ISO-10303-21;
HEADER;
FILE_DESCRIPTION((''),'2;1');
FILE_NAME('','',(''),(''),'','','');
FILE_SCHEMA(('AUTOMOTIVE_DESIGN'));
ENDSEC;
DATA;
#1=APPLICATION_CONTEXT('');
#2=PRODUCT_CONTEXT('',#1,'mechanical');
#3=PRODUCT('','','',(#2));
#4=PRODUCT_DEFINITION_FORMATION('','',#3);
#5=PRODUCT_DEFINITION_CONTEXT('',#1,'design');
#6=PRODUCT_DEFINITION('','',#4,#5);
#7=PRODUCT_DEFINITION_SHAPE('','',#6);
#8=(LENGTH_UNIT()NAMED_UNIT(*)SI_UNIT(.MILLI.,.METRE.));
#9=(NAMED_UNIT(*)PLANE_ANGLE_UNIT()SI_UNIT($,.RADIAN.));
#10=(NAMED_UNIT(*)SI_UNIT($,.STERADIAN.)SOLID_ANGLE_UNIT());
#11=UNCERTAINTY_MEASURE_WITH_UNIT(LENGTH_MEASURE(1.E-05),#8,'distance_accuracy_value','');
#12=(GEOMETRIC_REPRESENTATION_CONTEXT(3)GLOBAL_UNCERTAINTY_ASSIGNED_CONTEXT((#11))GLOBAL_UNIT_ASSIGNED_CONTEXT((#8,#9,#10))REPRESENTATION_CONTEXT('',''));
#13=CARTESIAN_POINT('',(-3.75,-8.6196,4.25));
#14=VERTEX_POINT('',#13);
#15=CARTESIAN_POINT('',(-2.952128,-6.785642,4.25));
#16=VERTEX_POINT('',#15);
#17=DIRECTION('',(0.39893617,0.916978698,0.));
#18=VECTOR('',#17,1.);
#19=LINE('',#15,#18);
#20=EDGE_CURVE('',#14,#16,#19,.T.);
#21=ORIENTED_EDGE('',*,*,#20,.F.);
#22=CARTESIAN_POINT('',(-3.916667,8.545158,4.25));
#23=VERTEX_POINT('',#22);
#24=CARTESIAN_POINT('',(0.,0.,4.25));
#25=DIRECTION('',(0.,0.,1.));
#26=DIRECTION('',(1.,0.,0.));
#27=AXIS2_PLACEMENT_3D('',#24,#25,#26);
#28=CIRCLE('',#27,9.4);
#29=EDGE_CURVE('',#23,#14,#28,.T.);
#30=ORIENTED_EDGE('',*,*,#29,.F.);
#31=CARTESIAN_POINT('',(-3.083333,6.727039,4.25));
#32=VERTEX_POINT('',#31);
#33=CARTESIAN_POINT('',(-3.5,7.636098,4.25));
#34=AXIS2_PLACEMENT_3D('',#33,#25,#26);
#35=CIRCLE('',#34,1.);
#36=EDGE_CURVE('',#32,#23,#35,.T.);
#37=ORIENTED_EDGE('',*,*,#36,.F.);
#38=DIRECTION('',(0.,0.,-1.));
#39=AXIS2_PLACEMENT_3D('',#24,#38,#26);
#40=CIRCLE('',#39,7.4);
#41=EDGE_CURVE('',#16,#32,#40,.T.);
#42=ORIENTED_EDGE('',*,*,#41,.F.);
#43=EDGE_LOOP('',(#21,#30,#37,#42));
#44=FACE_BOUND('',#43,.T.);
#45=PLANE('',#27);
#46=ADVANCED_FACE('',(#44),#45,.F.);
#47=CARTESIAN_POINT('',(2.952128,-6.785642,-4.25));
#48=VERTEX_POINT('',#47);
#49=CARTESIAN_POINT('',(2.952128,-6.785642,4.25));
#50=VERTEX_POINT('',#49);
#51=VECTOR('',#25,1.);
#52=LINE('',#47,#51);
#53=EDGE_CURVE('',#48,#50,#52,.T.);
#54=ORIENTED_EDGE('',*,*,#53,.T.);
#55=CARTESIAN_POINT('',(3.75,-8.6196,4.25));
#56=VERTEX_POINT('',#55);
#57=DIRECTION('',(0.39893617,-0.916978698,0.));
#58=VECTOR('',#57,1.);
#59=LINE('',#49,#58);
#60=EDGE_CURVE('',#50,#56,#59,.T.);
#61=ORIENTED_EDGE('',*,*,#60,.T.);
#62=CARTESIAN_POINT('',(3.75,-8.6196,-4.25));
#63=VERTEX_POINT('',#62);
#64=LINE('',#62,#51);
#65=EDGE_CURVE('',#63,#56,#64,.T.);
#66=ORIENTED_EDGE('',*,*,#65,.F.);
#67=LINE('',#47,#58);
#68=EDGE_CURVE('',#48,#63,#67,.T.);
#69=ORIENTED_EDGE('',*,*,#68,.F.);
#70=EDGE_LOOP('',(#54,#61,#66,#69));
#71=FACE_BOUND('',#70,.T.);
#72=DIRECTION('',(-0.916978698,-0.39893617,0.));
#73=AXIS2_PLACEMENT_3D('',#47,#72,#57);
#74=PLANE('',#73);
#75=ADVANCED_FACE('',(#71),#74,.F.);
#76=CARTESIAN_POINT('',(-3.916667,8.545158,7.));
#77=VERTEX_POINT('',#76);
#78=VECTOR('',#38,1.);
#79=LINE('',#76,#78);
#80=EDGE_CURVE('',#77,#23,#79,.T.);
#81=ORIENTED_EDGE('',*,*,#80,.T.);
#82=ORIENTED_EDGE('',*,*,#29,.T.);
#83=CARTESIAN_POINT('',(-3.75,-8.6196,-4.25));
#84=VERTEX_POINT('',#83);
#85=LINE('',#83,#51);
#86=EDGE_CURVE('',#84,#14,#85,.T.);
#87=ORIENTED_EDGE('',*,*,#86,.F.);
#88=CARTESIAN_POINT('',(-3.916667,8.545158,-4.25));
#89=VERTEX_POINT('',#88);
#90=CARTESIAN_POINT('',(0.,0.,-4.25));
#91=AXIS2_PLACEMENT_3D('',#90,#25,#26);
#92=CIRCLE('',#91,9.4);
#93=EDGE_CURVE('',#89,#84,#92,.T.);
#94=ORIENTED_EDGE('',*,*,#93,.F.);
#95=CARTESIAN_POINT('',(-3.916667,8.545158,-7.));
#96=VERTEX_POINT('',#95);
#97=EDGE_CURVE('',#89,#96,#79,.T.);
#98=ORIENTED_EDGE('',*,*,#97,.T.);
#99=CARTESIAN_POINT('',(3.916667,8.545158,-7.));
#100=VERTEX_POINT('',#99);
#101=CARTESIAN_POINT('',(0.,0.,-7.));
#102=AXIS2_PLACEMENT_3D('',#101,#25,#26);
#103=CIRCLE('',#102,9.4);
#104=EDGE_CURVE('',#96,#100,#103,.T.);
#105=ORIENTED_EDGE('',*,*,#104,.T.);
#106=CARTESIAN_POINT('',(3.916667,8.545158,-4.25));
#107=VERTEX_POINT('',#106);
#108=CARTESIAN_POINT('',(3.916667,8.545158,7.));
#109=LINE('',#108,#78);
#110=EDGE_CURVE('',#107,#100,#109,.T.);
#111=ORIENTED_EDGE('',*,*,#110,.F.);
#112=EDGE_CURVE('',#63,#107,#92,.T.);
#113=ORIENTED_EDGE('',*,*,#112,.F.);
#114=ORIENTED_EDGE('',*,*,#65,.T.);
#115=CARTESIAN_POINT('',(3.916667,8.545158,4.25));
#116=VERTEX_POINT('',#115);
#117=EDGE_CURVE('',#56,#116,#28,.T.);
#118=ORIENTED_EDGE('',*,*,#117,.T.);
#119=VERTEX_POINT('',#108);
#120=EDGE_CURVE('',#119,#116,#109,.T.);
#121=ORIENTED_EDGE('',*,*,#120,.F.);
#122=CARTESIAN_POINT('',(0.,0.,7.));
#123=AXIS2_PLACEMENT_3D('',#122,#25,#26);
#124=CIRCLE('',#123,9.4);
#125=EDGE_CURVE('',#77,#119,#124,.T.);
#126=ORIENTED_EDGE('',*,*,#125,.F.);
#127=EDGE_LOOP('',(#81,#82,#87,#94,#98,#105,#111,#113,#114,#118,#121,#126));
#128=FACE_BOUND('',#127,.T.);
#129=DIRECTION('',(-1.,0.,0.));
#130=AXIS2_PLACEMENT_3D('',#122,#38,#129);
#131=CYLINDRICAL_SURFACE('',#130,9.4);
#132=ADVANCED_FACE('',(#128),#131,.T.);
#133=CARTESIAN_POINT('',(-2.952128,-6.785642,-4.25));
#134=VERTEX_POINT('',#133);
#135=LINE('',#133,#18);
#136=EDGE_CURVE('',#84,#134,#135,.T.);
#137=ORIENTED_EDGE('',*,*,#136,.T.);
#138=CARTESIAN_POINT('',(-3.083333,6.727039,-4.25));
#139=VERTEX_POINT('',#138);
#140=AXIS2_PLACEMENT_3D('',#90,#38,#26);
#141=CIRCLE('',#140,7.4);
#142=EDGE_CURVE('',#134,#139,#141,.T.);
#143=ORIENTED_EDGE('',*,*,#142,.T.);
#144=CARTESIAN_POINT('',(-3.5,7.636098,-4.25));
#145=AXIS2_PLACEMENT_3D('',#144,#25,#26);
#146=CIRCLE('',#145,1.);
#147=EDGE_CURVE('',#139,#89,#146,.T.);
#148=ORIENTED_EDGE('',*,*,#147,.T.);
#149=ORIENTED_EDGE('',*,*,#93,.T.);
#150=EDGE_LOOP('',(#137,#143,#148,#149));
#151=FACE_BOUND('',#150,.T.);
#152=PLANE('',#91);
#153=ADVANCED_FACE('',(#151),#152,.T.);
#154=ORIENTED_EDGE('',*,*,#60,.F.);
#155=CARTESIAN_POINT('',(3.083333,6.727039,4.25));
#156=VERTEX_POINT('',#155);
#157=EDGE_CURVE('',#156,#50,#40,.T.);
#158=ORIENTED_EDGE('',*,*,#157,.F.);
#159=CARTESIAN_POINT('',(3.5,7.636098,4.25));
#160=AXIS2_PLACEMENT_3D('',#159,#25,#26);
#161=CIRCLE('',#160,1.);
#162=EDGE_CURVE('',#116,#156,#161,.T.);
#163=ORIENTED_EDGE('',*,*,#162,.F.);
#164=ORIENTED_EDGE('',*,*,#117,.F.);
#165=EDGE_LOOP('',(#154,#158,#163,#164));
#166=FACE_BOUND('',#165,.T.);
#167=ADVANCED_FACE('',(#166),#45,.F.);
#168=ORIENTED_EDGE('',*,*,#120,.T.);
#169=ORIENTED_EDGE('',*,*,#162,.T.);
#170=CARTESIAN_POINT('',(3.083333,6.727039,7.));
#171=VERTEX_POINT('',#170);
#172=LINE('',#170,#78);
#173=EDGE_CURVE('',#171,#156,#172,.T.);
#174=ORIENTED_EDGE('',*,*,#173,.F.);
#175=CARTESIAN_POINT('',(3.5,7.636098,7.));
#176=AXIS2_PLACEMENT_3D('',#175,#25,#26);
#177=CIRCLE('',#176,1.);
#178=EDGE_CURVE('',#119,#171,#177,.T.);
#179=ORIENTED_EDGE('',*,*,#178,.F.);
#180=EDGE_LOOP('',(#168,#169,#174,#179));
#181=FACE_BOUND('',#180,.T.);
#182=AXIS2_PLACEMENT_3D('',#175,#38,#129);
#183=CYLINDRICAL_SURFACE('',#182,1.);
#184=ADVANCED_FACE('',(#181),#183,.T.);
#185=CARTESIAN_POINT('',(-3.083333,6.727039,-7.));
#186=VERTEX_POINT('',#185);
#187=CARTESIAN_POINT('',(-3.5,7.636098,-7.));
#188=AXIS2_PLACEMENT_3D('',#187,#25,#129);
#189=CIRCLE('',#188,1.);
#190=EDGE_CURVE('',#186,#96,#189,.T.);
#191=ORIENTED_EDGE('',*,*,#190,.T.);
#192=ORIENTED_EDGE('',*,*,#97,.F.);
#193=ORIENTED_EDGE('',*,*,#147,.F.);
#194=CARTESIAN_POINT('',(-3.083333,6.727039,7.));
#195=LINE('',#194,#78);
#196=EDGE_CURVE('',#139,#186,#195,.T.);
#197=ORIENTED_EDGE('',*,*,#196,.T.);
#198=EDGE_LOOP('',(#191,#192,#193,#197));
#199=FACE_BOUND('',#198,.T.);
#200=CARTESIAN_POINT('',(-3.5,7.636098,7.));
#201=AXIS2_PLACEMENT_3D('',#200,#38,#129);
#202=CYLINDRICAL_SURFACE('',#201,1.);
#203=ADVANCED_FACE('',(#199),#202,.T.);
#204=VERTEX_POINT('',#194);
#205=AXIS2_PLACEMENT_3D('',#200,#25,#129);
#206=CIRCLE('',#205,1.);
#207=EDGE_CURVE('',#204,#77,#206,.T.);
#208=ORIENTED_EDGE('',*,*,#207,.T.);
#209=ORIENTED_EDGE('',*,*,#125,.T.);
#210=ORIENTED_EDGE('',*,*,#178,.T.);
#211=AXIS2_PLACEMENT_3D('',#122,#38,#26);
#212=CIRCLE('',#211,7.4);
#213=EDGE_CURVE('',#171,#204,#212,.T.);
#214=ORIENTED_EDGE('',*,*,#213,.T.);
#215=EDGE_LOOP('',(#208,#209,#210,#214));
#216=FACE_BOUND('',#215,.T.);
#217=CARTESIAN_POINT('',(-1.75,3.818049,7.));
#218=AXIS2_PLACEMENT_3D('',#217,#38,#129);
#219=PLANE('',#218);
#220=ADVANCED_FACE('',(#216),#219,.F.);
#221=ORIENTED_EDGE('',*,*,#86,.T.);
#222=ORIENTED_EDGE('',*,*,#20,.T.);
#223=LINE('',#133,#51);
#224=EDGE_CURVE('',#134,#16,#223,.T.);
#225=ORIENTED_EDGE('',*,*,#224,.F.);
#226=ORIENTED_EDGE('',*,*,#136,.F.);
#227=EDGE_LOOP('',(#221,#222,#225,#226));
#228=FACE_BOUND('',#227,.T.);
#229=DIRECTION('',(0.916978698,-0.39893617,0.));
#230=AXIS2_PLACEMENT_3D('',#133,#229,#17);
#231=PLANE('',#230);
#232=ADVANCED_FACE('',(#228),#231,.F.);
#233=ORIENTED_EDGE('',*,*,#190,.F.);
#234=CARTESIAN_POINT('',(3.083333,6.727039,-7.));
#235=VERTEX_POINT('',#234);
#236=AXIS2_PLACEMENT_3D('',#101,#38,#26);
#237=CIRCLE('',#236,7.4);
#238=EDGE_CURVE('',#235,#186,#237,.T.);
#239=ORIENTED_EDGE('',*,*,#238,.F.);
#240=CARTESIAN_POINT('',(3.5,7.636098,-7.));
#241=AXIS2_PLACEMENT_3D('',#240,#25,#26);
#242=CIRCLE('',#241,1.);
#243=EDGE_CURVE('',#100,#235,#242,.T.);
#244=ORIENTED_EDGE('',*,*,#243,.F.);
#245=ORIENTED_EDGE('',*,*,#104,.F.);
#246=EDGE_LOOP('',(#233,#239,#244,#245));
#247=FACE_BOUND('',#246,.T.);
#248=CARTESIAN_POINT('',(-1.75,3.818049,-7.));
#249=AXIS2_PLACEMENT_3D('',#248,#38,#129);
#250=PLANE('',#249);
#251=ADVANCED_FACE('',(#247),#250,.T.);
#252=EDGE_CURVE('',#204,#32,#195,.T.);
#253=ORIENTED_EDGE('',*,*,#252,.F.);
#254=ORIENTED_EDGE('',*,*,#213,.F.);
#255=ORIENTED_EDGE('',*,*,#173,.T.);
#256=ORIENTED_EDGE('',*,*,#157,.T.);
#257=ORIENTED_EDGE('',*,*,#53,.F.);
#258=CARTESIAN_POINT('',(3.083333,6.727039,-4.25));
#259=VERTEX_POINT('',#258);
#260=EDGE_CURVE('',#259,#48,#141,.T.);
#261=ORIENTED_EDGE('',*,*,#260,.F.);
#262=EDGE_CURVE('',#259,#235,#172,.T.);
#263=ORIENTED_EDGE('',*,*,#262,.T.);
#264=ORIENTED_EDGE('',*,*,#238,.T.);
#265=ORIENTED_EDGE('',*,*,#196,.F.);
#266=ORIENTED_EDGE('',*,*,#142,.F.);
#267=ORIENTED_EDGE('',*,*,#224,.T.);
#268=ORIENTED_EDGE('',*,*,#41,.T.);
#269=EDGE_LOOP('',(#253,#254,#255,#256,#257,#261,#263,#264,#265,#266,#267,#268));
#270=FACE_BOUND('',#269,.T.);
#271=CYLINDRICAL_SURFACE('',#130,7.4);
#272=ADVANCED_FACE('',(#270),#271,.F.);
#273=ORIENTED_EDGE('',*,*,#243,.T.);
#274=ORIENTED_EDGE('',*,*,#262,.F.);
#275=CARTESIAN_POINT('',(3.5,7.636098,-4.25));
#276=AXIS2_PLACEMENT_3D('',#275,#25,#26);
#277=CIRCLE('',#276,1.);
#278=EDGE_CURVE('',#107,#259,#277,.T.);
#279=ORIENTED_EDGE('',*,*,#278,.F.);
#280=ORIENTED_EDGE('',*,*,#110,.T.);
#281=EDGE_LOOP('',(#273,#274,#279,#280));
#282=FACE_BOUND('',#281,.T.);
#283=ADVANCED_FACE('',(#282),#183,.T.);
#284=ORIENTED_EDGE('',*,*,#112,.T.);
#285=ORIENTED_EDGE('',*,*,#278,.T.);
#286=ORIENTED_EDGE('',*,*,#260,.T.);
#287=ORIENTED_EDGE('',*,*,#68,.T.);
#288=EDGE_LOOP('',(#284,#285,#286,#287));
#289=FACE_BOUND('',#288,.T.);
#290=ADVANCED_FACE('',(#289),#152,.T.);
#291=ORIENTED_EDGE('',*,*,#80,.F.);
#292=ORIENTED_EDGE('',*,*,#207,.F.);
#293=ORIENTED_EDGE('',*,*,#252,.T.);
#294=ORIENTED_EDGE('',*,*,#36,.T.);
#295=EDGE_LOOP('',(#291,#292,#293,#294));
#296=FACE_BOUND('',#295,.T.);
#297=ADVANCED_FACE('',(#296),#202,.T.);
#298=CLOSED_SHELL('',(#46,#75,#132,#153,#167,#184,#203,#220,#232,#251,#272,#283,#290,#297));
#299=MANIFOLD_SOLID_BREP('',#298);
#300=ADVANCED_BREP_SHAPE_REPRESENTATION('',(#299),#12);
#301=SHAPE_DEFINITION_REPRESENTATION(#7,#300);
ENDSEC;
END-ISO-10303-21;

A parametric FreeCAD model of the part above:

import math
import FreeCAD as App
import Part
import Sketcher

V = App.Vector
Q = App.Units.Quantity

doc = App.newDocument("Part")
params = doc.addObject("Spreadsheet::Sheet", "Params")
for row, (alias, value) in enumerate([
    ("sketch1_radius", "1 mm"),
    ("sketch1_radius2", "7.4 mm"),
    ("pad1_length", "14 mm"),
    ("sketch2_radius", "1 mm"),
    ("sketch2_radius2", "7.4 mm"),
    ("pocket1_length", "8.5 mm"),
], start=1):
    params.set(f"A{row}", alias)
    params.set(f"B{row}", "=" + value)
    params.setAlias(f"B{row}", alias)

body = doc.addObject("PartDesign::Body", "Body")

sketch1 = doc.addObject("Sketcher::SketchObject", "Sketch")
body.addObject(sketch1)
sketch1.AttachmentSupport = (doc.XY_Plane, [""])
sketch1.MapMode = "FlatFace"
sketch1.addGeometry([
    Part.ArcOfCircle(Part.Circle(V(0, 0, 0), V(0, 0, 1), 7.4), math.radians(115), math.radians(425)),
    Part.ArcOfCircle(Part.Circle(V(-3.5, 7.6, 0), V(0, 0, 1), 1), math.radians(-65), math.radians(115)),
    Part.ArcOfCircle(Part.Circle(V(0, 0, 0), V(0, 0, 1), 9.4), math.radians(115), math.radians(425)),
    Part.ArcOfCircle(Part.Circle(V(3.5, 7.6, 0), V(0, 0, 1), 1), math.radians(65), math.radians(245)),
], False)
sketch1.addConstraint([
    Sketcher.Constraint("Tangent", 0, 1, 1, 1),
    Sketcher.Constraint("Tangent", 1, 2, 2, 1),
    Sketcher.Constraint("Tangent", 2, 2, 3, 1),
    Sketcher.Constraint("Tangent", 3, 2, 0, 2),
    Sketcher.Constraint("Coincident", 0, 3, -1, 1),
    Sketcher.Constraint("Coincident", 2, 3, -1, 1),
    Sketcher.Constraint("Horizontal", 1, 3, 3, 3),
    Sketcher.Constraint("Radius", 1, Q("1 mm")),
    Sketcher.Constraint("Radius", 0, Q("7.4 mm")),
    Sketcher.Constraint("DistanceX", 1, 3, 3, 3, Q("7 mm")),
])
sketch1.setExpression("Constraints[7]", "Params.sketch1_radius")
sketch1.setExpression("Constraints[8]", "Params.sketch1_radius2")
pad1 = doc.addObject("PartDesign::Pad", "Pad")
body.addObject(pad1)
pad1.Profile = sketch1
pad1.setExpression("Length", "Params.pad1_length")
pad1.Midplane = True

sketch2 = doc.addObject("Sketcher::SketchObject", "Sketch001")
body.addObject(sketch2)
sketch2.AttachmentSupport = (doc.XY_Plane, [""])
sketch2.MapMode = "FlatFace"
sketch2.addGeometry([
    Part.LineSegment(V(-3.8, -8.6, 0), V(-3, -6.8, 0)),
    Part.ArcOfCircle(Part.Circle(V(0, 0, 0), V(0, 0, 1), 7.4), math.radians(115), math.radians(246)),
    Part.ArcOfCircle(Part.Circle(V(-3.5, 7.6, 0), V(0, 0, 1), 1), math.radians(-65), math.radians(115)),
    Part.ArcOfCircle(Part.Circle(V(0, 0, 0), V(0, 0, 1), 9.4), math.radians(115), math.radians(246)),
    Part.LineSegment(V(3, -6.8, 0), V(3.8, -8.6, 0)),
    Part.ArcOfCircle(Part.Circle(V(0, 0, 0), V(0, 0, 1), 9.4), math.radians(-66), math.radians(65)),
    Part.ArcOfCircle(Part.Circle(V(3.5, 7.6, 0), V(0, 0, 1), 1), math.radians(65), math.radians(245)),
    Part.ArcOfCircle(Part.Circle(V(0, 0, 0), V(0, 0, 1), 7.4), math.radians(-66), math.radians(65)),
], False)
sketch2.addConstraint([
    Sketcher.Constraint("Coincident", 0, 2, 1, 2),
    Sketcher.Constraint("Tangent", 1, 1, 2, 1),
    Sketcher.Constraint("Tangent", 2, 2, 3, 1),
    Sketcher.Constraint("Coincident", 3, 2, 0, 1),
    Sketcher.Constraint("Coincident", 4, 2, 5, 1),
    Sketcher.Constraint("Tangent", 5, 2, 6, 1),
    Sketcher.Constraint("Tangent", 6, 2, 7, 2),
    Sketcher.Constraint("Coincident", 7, 1, 4, 1),
    Sketcher.Constraint("Coincident", 1, 3, -1, 1),
    Sketcher.Constraint("Coincident", 3, 3, -1, 1),
    Sketcher.Constraint("Coincident", 5, 3, -1, 1),
    Sketcher.Constraint("Coincident", 7, 3, -1, 1),
    Sketcher.Constraint("Equal", 3, 5),
    Sketcher.Constraint("Equal", 2, 6),
    Sketcher.Constraint("Horizontal", 2, 3, 6, 3),
    Sketcher.Constraint("Horizontal", 3, 2, 4, 2),
    Sketcher.Constraint("Horizontal", 0, 2, 7, 1),
    Sketcher.Constraint("Radius", 2, Q("1 mm")),
    Sketcher.Constraint("Radius", 1, Q("7.4 mm")),
    Sketcher.Constraint("DistanceX", 2, 3, 6, 3, Q("7 mm")),
    Sketcher.Constraint("DistanceX", 3, 2, 4, 2, Q("7.5 mm")),
    Sketcher.Constraint("DistanceY", 0, 2, 2, 3, Q("14.421741 mm")),
])
sketch2.setExpression("Constraints[17]", "Params.sketch2_radius")
sketch2.setExpression("Constraints[18]", "Params.sketch2_radius2")
pocket1 = doc.addObject("PartDesign::Pocket", "Pocket")
body.addObject(pocket1)
pocket1.Profile = sketch2
pocket1.setExpression("Length", "Params.pocket1_length")
pocket1.Midplane = True

doc.recompute()
